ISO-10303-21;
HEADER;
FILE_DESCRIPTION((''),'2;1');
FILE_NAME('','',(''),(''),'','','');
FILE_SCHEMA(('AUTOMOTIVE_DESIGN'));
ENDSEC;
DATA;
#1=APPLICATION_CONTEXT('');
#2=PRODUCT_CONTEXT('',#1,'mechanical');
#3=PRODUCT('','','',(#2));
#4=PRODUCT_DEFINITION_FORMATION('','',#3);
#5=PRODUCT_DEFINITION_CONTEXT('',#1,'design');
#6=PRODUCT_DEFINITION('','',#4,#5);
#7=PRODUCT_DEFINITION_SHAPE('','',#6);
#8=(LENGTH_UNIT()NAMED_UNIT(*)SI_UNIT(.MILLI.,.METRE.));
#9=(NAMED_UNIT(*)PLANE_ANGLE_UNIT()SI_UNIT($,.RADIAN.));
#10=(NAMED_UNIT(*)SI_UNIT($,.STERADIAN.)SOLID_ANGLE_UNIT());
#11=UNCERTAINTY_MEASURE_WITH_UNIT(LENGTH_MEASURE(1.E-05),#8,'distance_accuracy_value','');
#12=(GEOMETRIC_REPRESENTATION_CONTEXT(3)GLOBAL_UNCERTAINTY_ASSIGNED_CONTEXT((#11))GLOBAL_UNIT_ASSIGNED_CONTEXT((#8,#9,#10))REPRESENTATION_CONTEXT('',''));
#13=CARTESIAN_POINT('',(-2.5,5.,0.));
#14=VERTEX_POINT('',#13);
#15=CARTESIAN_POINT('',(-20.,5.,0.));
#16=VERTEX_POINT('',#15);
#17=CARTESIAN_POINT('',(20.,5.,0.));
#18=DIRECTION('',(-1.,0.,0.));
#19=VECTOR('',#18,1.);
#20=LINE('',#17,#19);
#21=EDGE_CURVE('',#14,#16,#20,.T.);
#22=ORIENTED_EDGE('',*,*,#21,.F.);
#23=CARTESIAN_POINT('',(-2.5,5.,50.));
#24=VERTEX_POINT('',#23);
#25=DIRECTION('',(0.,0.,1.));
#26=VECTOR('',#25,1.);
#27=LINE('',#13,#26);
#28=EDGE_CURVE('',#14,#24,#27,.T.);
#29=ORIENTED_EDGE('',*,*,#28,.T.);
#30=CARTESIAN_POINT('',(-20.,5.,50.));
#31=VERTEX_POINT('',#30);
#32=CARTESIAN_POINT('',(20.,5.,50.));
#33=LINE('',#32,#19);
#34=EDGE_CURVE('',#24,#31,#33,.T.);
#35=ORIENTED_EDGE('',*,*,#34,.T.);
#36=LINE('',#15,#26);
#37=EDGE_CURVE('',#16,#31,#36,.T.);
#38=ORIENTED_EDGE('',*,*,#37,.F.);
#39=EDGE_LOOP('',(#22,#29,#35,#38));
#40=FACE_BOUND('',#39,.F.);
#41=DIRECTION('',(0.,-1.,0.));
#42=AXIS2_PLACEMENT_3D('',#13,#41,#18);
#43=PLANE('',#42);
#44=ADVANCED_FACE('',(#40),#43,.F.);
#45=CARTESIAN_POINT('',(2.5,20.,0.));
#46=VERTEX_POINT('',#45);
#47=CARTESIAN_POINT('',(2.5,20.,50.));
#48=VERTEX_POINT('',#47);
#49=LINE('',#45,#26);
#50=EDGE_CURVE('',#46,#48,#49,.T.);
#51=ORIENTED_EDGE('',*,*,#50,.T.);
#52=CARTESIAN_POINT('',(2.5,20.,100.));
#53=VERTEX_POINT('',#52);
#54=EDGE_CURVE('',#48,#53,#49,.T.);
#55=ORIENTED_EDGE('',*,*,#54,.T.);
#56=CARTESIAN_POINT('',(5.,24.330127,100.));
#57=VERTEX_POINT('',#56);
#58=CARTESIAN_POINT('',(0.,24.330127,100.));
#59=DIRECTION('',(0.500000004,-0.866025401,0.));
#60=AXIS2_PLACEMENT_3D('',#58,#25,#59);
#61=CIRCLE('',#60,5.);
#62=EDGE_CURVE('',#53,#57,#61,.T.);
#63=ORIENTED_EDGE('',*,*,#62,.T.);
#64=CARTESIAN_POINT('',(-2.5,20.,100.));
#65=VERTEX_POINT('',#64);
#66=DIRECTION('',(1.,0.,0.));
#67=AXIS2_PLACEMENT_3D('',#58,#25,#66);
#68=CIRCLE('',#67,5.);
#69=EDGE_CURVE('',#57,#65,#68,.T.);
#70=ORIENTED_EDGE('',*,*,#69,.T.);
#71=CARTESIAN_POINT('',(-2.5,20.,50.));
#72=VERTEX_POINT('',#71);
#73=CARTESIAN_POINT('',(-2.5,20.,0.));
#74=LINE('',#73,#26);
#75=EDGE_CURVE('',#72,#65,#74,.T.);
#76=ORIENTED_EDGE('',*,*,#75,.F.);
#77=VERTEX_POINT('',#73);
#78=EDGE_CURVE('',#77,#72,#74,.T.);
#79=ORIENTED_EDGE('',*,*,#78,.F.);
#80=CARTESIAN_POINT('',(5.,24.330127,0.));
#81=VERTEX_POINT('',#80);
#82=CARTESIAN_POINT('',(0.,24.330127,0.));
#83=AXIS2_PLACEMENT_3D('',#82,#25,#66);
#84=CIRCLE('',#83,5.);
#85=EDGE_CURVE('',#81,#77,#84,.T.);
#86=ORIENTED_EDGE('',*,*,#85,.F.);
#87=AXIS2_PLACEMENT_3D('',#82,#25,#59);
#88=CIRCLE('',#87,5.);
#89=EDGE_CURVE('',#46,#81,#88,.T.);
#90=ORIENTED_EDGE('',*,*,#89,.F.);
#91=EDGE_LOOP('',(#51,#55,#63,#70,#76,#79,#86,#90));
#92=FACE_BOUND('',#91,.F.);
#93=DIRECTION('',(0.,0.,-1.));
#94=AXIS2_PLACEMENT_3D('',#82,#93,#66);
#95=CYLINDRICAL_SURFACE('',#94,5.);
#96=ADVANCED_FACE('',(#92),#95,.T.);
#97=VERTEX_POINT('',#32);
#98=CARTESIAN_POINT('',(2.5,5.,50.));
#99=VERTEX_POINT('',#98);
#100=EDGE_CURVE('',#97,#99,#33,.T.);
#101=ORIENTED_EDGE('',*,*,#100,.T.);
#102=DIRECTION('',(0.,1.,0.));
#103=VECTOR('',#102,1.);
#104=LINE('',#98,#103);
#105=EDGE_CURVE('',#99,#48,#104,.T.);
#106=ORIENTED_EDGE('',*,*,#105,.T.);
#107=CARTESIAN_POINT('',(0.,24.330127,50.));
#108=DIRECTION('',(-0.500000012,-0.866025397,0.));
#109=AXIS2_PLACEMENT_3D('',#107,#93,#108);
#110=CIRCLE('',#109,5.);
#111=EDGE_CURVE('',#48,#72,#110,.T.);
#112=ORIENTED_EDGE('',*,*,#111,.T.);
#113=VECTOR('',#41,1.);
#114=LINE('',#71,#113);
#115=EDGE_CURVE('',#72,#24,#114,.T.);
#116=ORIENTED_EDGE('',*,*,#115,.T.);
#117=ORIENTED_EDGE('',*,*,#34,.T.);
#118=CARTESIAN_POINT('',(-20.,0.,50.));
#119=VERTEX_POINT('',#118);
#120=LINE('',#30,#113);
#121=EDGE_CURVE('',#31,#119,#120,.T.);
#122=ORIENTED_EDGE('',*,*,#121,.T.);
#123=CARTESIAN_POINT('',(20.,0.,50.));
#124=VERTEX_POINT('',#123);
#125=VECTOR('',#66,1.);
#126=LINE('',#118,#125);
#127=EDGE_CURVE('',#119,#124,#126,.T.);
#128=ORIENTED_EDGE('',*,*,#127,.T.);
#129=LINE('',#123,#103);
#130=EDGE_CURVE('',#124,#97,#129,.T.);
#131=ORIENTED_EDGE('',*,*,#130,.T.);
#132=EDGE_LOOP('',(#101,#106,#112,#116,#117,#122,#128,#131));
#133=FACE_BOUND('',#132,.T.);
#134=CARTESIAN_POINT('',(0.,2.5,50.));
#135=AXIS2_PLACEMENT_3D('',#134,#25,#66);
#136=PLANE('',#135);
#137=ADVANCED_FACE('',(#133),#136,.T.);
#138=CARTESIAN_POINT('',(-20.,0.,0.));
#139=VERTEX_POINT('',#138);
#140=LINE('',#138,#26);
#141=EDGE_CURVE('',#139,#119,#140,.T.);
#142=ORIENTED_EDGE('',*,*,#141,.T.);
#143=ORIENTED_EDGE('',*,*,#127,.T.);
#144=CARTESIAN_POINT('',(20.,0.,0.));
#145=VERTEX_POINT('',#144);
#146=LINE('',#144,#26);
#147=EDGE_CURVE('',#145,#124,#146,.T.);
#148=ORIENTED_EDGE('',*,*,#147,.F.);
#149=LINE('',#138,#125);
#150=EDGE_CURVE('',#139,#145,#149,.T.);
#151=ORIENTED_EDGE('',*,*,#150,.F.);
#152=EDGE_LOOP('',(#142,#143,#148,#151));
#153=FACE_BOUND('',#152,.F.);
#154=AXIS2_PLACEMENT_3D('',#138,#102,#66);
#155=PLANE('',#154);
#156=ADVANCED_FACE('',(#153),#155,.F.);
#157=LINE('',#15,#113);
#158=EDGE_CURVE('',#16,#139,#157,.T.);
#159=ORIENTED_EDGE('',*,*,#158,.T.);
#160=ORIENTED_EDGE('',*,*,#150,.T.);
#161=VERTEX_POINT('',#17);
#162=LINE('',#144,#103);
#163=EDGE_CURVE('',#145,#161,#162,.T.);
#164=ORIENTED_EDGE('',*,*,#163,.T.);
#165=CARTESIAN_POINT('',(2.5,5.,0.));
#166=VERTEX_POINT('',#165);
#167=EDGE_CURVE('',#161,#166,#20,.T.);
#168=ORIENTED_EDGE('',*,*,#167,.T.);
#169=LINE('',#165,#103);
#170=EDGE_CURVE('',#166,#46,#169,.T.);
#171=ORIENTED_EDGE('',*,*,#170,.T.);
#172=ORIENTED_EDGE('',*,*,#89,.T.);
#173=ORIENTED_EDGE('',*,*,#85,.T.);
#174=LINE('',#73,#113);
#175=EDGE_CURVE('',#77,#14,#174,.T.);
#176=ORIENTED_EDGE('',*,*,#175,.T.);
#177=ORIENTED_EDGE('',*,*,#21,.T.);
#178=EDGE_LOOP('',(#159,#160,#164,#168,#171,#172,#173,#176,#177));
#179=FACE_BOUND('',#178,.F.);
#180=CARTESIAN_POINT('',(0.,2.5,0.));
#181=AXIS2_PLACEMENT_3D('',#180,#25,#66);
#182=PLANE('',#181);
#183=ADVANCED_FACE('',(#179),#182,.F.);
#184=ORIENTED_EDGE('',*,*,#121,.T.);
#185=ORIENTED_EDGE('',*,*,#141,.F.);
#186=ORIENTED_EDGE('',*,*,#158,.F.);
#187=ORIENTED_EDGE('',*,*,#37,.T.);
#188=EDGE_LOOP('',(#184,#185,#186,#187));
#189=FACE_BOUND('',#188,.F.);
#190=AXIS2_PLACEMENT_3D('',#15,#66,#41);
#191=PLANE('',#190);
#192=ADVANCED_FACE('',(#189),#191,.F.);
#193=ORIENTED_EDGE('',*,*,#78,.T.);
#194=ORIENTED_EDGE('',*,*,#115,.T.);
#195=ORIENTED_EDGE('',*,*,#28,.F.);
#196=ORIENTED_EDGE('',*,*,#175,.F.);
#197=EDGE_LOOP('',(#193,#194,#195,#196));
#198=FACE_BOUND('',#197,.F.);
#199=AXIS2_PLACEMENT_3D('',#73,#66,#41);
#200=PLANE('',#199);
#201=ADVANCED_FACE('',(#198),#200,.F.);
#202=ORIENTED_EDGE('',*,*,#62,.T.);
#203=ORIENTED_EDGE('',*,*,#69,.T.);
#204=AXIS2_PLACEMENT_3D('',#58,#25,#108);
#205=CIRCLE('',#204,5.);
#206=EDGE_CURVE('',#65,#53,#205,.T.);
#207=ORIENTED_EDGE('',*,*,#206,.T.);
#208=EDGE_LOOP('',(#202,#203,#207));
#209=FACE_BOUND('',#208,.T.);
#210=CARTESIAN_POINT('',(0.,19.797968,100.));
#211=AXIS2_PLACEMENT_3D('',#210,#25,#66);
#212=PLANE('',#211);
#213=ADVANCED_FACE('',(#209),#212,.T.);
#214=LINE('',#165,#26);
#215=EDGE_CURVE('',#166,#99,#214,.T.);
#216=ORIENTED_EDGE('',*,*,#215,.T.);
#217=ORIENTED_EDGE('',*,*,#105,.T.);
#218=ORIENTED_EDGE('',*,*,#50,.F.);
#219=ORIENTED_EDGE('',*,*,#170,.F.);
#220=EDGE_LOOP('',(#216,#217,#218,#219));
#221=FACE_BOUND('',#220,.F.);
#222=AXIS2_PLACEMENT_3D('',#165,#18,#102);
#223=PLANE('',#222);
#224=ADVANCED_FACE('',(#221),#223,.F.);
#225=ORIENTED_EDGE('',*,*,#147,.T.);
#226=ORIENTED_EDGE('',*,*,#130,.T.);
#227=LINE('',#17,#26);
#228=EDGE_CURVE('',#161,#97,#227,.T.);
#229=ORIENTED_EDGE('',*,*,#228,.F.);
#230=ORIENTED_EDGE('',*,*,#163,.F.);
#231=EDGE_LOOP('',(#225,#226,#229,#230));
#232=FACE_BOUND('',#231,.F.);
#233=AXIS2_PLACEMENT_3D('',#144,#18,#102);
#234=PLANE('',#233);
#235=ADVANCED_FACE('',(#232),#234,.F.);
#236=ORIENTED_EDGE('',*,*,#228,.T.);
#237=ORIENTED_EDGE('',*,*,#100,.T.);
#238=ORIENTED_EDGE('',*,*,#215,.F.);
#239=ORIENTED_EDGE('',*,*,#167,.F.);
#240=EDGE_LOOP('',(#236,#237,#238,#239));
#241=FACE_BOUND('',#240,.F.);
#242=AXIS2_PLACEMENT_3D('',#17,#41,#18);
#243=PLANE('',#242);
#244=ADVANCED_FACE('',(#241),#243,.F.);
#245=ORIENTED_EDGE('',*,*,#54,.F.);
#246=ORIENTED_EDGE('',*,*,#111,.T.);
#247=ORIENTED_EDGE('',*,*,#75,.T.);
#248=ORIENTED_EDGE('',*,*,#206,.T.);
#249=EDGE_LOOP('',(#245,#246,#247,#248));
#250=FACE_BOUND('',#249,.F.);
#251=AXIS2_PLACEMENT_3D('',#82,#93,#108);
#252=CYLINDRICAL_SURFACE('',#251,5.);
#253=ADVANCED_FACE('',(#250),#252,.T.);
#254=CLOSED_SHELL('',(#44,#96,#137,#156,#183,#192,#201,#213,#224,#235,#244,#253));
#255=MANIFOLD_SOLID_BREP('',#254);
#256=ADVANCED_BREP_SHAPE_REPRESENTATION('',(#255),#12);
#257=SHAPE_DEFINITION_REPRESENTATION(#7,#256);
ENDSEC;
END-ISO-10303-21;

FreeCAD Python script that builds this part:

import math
import FreeCAD as App
import Part
import Sketcher

doc = App.newDocument("Part")
body = doc.addObject("PartDesign::Body", "Body")

# Sketch on XY plane
sketch1 = doc.addObject("Sketcher::SketchObject", "Sketch")
body.addObject(sketch1)
sketch1.AttachmentSupport = (doc.XY_Plane, [""])
sketch1.MapMode = "FlatFace"
sketch1.addGeometry(Part.LineSegment(App.Vector(-20, 5, 0), App.Vector(-20, 0, 0)), False)
sketch1.addGeometry(Part.LineSegment(App.Vector(-20, 0, 0), App.Vector(20, 0, 0)), False)
sketch1.addGeometry(Part.LineSegment(App.Vector(20, 0, 0), App.Vector(20, 5, 0)), False)
sketch1.addGeometry(Part.LineSegment(App.Vector(20, 5, 0), App.Vector(2.5, 5, 0)), False)
sketch1.addGeometry(Part.LineSegment(App.Vector(2.5, 5, 0), App.Vector(2.5, 20, 0)), False)
sketch1.addGeometry(Part.ArcOfCircle(Part.Circle(App.Vector(0, 24.3, 0), App.Vector(0, 0, 1), 5), math.radians(-60), math.radians(0)), False)
sketch1.addGeometry(Part.ArcOfCircle(Part.Circle(App.Vector(0, 24.3, 0), App.Vector(0, 0, 1), 5), math.radians(0), math.radians(240)), False)
sketch1.addGeometry(Part.LineSegment(App.Vector(-2.5, 20, 0), App.Vector(-2.5, 5, 0)), False)
sketch1.addGeometry(Part.LineSegment(App.Vector(-2.5, 5, 0), App.Vector(-20, 5, 0)), False)
sketch1.addConstraint(Sketcher.Constraint("Coincident", 0, 2, 1, 1))
sketch1.addConstraint(Sketcher.Constraint("Coincident", 1, 2, 2, 1))
sketch1.addConstraint(Sketcher.Constraint("Coincident", 2, 2, 3, 1))
sketch1.addConstraint(Sketcher.Constraint("Coincident", 3, 2, 4, 1))
sketch1.addConstraint(Sketcher.Constraint("Coincident", 4, 2, 5, 1))
sketch1.addConstraint(Sketcher.Constraint("Tangent", 5, 2, 6, 1))
sketch1.addConstraint(Sketcher.Constraint("Coincident", 6, 2, 7, 1))
sketch1.addConstraint(Sketcher.Constraint("Coincident", 7, 2, 8, 1))
sketch1.addConstraint(Sketcher.Constraint("Coincident", 8, 2, 0, 1))
sketch1.addConstraint(Sketcher.Constraint("Vertical", 0))
sketch1.addConstraint(Sketcher.Constraint("Horizontal", 1))
sketch1.addConstraint(Sketcher.Constraint("Vertical", 2))
sketch1.addConstraint(Sketcher.Constraint("Horizontal", 3))
sketch1.addConstraint(Sketcher.Constraint("Vertical", 4))
sketch1.addConstraint(Sketcher.Constraint("Vertical", 7))
sketch1.addConstraint(Sketcher.Constraint("Horizontal", 8))
sketch1.addConstraint(Sketcher.Constraint("Equal", 5, 6))
sketch1.addConstraint(Sketcher.Constraint("Symmetric", 0, 2, 1, 2, -1, 1))
sketch1.addConstraint(Sketcher.Constraint("Symmetric", 4, 2, 6, 2, -2))
sketch1.addConstraint(Sketcher.Constraint("Horizontal", 6, 3, 5, 2))
sketch1.addConstraint(Sketcher.Constraint("Horizontal", 3, 2, 7, 2))
sketch1.addConstraint(Sketcher.Constraint("Radius", 5, 5.0))
sketch1.addConstraint(Sketcher.Constraint("DistanceX", 1, 1, 1, 2, 40.0))
sketch1.addConstraint(Sketcher.Constraint("DistanceY", 0, 2, 0, 1, 5.0))
sketch1.addConstraint(Sketcher.Constraint("DistanceY", 4, 1, 4, 2, 15.0))
sketch1.addConstraint(Sketcher.Constraint("DistanceX", 3, 2, 3, 1, 17.5))
pad1 = doc.addObject("PartDesign::Pad", "Pad")
body.addObject(pad1)
pad1.Profile = sketch1
pad1.Length = 50

# Sketch on XY plane
sketch2 = doc.addObject("Sketcher::SketchObject", "Sketch001")
body.addObject(sketch2)
sketch2.AttachmentSupport = (doc.XY_Plane, [""])
sketch2.MapMode = "FlatFace"
sketch2.addGeometry(Part.ArcOfCircle(Part.Circle(App.Vector(0, 24.3, 0), App.Vector(0, 0, 1), 5), math.radians(-120), math.radians(-60)), False)
sketch2.addGeometry(Part.ArcOfCircle(Part.Circle(App.Vector(0, 24.3, 0), App.Vector(0, 0, 1), 5), math.radians(-60), math.radians(0)), False)
sketch2.addGeometry(Part.ArcOfCircle(Part.Circle(App.Vector(0, 24.3, 0), App.Vector(0, 0, 1), 5), math.radians(0), math.radians(240)), False)
sketch2.addConstraint(Sketcher.Constraint("Tangent", 0, 2, 1, 1))
sketch2.addConstraint(Sketcher.Constraint("Tangent", 1, 2, 2, 1))
sketch2.addConstraint(Sketcher.Constraint("Tangent", 2, 2, 0, 1))
sketch2.addConstraint(Sketcher.Constraint("Symmetric", 0, 2, 2, 2, -2))
sketch2.addConstraint(Sketcher.Constraint("Horizontal", 2, 3, 1, 2))
sketch2.addConstraint(Sketcher.Constraint("Radius", 0, 5.0))
sketch2.addConstraint(Sketcher.Constraint("DistanceY", -1, 1, 0, 2, 20.0))
sketch2.addConstraint(Sketcher.Constraint("DistanceX", 2, 2, 0, 2, 5.0))
pad2 = doc.addObject("PartDesign::Pad", "Pad001")
body.addObject(pad2)
pad2.Profile = sketch2
pad2.Length = 100

doc.recompute()
